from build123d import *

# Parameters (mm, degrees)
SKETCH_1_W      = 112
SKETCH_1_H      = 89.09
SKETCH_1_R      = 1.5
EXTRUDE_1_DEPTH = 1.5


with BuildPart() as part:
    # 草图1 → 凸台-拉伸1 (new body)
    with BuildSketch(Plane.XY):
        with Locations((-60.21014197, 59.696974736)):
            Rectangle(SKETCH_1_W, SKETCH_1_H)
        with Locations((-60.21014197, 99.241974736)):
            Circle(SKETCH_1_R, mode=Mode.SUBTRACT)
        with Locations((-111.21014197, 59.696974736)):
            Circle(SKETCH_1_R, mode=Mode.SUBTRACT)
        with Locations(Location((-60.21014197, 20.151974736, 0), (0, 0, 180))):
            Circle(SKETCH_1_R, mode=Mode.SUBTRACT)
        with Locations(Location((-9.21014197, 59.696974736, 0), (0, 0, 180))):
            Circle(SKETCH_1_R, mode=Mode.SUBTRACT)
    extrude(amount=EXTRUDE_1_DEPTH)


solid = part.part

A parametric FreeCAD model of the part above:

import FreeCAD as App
import Part
import Sketcher

V = App.Vector


def add_polygon(sketch, points):
    """Adds a closed chain of lines whose ends are joined by coincident constraints."""
    first, n = sketch.GeometryCount, len(points)
    for a, b in zip(points, points[1:] + points[:1]):
        sketch.addGeometry(Part.LineSegment(App.Vector(*a, 0), App.Vector(*b, 0)), False)
    for i in range(n):
        sketch.addConstraint(Sketcher.Constraint("Coincident", first + i, 2, first + (i + 1) % n, 1))

doc = App.newDocument("Part")
body = doc.addObject("PartDesign::Body", "Body")

sketch1 = body.newObject("Sketcher::SketchObject", "Sketch")
sketch1.AttachmentSupport = (doc.getObject("XY_Plane"), [""])
sketch1.MapMode = "FlatFace"
add_polygon(sketch1, [(-116.210142, 104.241975), (-116.210142, 15.151975), (-4.210142, 15.151975), (-4.210142, 104.241975)])
sketch1.addGeometry(Part.Circle(V(-60.210142, 20.151975, 0), V(0, 0, 1), 1.5), False)
sketch1.addGeometry(Part.Circle(V(-111.210142, 59.696975, 0), V(0, 0, 1), 1.5), False)
sketch1.addGeometry(Part.Circle(V(-9.210142, 59.696975, 0), V(0, 0, 1), 1.5), False)
sketch1.addGeometry(Part.Circle(V(-60.210142, 99.241975, 0), V(0, 0, 1), 1.5), False)
sketch1.addConstraint([
    Sketcher.Constraint("Vertical", 0),
    Sketcher.Constraint("Horizontal", 1),
    Sketcher.Constraint("Vertical", 2),
    Sketcher.Constraint("Horizontal", 3),
    Sketcher.Constraint("Equal", 4, 5),
    Sketcher.Constraint("Equal", 5, 6),
    Sketcher.Constraint("Equal", 6, 7),
    Sketcher.Constraint("Horizontal", 5, 3, 6, 3),
    Sketcher.Constraint("Vertical", 4, 3, 7, 3),
    Sketcher.Constraint("Diameter", 4, 3.0),
    Sketcher.Constraint("DistanceX", 1, 1, 1, 2, 112.0),
    Sketcher.Constraint("DistanceX", 5, 3, 4, 3, 51.0),
    Sketcher.Constraint("DistanceX", 4, 3, 6, 3, 51.0),
    Sketcher.Constraint("DistanceX", 0, 2, 5, 3, 5.0),
    Sketcher.Constraint("DistanceY", 0, 2, 4, 3, 5.0),
    Sketcher.Constraint("DistanceY", 7, 3, 2, 2, 5.0),
    Sketcher.Constraint("DistanceY", 0, 2, 0, 1, 89.09),
    Sketcher.Constraint("DistanceY", 4, 3, 5, 3, 39.545),
    Sketcher.Constraint("DistanceX", 4, 3, -1, 1, 60.210142),
    Sketcher.Constraint("DistanceY", -1, 1, 4, 3, 20.151975),
])
pad1 = body.newObject("PartDesign::Pad", "Pad")
pad1.Profile = sketch1
pad1.Length = 1.5

doc.recompute()
